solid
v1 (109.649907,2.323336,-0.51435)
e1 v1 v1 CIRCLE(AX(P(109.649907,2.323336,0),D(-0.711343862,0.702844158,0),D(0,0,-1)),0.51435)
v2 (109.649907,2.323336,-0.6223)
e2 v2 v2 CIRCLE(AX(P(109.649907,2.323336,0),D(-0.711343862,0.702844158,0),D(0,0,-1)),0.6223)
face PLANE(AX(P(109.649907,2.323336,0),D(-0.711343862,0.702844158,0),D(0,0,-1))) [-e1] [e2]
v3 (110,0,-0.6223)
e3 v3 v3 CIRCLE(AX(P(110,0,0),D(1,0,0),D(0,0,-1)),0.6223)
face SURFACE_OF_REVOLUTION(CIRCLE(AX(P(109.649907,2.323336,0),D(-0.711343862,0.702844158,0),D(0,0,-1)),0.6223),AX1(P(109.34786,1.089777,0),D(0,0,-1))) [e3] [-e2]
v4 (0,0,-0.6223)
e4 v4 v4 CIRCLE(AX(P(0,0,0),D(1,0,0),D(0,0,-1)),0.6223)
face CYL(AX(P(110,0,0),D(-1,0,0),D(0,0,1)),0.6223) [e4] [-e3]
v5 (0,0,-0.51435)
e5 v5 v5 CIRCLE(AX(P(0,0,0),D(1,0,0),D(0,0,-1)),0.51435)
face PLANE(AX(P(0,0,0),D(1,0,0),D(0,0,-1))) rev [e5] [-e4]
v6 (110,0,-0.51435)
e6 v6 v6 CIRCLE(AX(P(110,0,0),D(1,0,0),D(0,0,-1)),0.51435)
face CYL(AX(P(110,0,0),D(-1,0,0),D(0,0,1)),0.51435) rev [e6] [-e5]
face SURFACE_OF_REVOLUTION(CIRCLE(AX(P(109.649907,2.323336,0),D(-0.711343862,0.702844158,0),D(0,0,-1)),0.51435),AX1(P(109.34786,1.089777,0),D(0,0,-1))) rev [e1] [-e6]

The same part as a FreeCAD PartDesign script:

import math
import FreeCAD as App
import Part
import Sketcher
Q = App.Units.Quantity

doc = App.newDocument("Part")
body = doc.addObject("PartDesign::Body", "Body")

# Sketch on YZ plane
sketch1 = body.newObject("Sketcher::SketchObject", "Sketch")
sketch1.AttachmentSupport = (doc.getObject("YZ_Plane"), [""])
sketch1.MapMode = "FlatFace"
sketch1.addGeometry([
    Part.Circle(App.Vector(0, 0, 0), App.Vector(0, 0, 1), 0.6),
    Part.Circle(App.Vector(0, 0, 0), App.Vector(0, 0, 1), 0.5),
], False)
sketch1.addConstraint([
    Sketcher.Constraint("Coincident", 0, 3, -1, 1),
    Sketcher.Constraint("Coincident", 1, 3, -1, 1),
    Sketcher.Constraint("Diameter", 0, Q("0.049 in")),
    Sketcher.Constraint("Diameter", 1, Q("0.0405 in")),
])
pad1 = body.newObject("PartDesign::Pad", "Pad")
pad1.Profile = sketch1
pad1.Length = 110

# Sketch on YZ plane
sketch2 = body.newObject("Sketcher::SketchObject", "Sketch001")
sketch2.AttachmentSupport = (doc.getObject("YZ_Plane"), [""])
sketch2.MapMode = "FlatFace"
sketch2.AttachmentOffset = App.Placement(App.Vector(0, 0, 110), App.Rotation())
sketch2.addGeometry([
    Part.Circle(App.Vector(0, 0, 0), App.Vector(0, 0, 1), 0.6),
    Part.Circle(App.Vector(0, 0, 0), App.Vector(0, 0, 1), 0.5),
], False)
sketch2.addConstraint([
    Sketcher.Constraint("Coincident", 0, 3, -1, 1),
    Sketcher.Constraint("Coincident", 1, 3, -1, 1),
    Sketcher.Constraint("Diameter", 0, Q("0.049 in")),
    Sketcher.Constraint("Diameter", 1, Q("0.0405 in")),
])

# Sketch on XY plane
sketch3 = body.newObject("Sketcher::SketchObject", "Sketch002")
sketch3.AttachmentSupport = (doc.getObject("XY_Plane"), [""])
sketch3.MapMode = "FlatFace"
sketch3.addGeometry(Part.ArcOfCircle(Part.Circle(App.Vector(109.3, 1.1, 0), App.Vector(0, 0, 1), 1.3), math.radians(-59), math.radians(76)), False)
sketch3.addConstraint([
    Sketcher.Constraint("PointOnObject", 0, 1, -1),
    Sketcher.Constraint("Radius", 0, Q("0.05 in")),
    Sketcher.Constraint("DistanceX", -1, 1, 0, 1, Q("110 mm")),
    Sketcher.Constraint("DistanceX", -1, 1, 0, 3, Q("109.34786 mm")),
    Sketcher.Constraint("DistanceY", 0, 3, 0, 2, Q("1.233559 mm")),
])
doc.recompute()

additivepipe = body.newObject("PartDesign::AdditivePipe", "AdditivePipe")
additivepipe.Profile = sketch2
additivepipe.Spine = (sketch3, ["Edge1"])

doc.recompute()
